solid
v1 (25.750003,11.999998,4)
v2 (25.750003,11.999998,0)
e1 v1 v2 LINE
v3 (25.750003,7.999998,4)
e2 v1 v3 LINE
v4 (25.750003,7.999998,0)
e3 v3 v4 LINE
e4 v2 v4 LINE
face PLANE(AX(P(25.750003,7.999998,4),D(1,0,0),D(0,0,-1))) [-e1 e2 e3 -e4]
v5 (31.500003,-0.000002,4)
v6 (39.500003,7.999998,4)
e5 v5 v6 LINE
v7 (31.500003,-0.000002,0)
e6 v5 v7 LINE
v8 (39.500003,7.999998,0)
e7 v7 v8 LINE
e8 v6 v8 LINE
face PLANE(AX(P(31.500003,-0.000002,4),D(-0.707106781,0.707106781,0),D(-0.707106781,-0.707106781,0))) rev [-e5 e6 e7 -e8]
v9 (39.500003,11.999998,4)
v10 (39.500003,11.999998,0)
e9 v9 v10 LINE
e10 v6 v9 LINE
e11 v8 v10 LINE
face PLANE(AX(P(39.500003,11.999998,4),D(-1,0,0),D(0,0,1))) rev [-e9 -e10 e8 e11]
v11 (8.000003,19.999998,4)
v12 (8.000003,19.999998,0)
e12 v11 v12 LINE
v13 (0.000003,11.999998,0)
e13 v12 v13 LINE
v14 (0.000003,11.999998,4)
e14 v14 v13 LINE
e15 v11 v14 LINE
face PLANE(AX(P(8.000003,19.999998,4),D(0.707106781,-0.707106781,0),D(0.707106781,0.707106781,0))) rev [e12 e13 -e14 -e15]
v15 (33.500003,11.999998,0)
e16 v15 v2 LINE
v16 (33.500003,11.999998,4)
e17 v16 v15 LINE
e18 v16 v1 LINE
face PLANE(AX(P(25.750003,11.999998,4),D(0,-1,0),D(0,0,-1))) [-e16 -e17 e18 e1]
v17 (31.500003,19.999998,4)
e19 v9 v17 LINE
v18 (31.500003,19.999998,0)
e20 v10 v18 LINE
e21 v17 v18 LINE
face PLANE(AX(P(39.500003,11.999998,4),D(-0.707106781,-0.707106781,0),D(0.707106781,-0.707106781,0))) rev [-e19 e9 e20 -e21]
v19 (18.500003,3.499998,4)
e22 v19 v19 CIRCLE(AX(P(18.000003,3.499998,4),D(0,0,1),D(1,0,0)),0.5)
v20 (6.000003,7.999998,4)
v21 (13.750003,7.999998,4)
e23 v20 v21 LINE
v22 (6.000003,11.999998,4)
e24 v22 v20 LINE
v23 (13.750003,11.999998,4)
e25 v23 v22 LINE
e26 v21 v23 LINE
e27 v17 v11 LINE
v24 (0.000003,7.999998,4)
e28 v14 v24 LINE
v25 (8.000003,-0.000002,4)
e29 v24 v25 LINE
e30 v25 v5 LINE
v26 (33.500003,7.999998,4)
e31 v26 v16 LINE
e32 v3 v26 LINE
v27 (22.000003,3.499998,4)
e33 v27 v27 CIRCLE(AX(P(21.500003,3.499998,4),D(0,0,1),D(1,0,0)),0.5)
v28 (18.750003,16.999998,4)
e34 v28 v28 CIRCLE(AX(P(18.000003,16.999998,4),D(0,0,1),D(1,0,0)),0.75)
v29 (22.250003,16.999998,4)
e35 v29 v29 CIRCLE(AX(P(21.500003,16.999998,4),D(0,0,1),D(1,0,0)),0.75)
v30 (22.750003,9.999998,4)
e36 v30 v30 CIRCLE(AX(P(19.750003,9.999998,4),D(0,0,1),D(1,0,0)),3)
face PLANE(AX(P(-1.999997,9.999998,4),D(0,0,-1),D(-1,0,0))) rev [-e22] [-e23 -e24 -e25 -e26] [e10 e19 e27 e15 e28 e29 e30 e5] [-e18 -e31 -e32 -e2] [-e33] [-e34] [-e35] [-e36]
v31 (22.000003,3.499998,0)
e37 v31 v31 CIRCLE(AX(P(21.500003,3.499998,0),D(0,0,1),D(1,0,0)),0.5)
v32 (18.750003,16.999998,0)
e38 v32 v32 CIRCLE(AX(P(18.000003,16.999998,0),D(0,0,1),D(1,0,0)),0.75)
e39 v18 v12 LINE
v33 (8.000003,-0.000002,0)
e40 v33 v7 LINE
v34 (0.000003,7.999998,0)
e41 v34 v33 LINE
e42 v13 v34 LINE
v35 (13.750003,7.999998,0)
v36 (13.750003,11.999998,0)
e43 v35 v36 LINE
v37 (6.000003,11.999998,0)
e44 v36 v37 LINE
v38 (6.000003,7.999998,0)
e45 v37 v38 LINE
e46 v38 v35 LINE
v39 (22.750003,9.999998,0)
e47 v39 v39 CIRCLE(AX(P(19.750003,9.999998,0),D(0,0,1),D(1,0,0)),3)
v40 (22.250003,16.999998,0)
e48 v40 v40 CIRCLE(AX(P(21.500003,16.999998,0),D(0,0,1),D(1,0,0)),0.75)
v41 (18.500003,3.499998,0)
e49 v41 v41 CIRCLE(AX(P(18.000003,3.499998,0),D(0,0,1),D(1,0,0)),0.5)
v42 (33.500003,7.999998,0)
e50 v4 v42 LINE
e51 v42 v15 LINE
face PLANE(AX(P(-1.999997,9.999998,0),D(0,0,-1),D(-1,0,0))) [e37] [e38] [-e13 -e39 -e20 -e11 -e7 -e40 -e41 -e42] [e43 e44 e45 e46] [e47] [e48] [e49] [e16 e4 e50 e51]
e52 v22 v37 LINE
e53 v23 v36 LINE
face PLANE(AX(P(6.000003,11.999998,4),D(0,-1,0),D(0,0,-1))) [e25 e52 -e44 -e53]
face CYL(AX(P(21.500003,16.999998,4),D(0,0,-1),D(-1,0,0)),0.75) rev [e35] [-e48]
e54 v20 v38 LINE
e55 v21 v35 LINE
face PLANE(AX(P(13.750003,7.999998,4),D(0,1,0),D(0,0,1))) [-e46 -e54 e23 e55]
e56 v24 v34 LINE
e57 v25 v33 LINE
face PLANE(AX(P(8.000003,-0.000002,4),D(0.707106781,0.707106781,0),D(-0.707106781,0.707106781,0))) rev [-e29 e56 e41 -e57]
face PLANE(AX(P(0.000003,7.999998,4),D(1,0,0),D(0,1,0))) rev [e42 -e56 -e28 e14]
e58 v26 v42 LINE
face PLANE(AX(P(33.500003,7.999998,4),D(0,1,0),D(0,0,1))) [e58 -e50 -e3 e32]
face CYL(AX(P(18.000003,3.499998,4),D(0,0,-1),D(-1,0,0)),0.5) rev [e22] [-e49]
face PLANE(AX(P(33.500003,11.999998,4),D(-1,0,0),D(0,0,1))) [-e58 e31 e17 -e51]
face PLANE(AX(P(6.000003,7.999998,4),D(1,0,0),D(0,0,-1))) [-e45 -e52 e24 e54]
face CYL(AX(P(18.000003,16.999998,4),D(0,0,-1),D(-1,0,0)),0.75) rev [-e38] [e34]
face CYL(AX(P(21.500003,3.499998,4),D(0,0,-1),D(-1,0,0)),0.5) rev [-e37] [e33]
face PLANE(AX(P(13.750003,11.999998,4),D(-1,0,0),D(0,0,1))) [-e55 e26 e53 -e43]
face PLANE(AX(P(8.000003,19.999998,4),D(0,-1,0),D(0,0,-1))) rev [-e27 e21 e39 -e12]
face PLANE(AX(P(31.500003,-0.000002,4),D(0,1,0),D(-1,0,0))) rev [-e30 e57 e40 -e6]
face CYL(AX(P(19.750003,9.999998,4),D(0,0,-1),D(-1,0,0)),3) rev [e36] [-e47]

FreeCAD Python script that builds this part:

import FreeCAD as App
import Part
import Sketcher
from FreeCAD import Vector
Q = App.Units.Quantity

doc = App.newDocument("Part")
body = doc.addObject("PartDesign::Body", "Body")

# Sketch on XY plane
sketch1 = body.newObject("Sketcher::SketchObject", "Sketch")
sketch1.AttachmentSupport = (doc.getObject("XY_Plane"), [""])
sketch1.MapMode = "FlatFace"
sketch1.addGeometry([
    Part.LineSegment(Vector(31.5, 20, 0), Vector(8, 20, 0)),  # 0
    Part.LineSegment(Vector(8, 20, 0), Vector(0, 12, 0)),  # 1
    Part.LineSegment(Vector(0, 12, 0), Vector(0, 8, 0)),  # 2
    Part.LineSegment(Vector(0, 8, 0), Vector(8, 0, 0)),  # 3
    Part.LineSegment(Vector(8, 0, 0), Vector(31.5, 0, 0)),  # 4
    Part.LineSegment(Vector(31.5, 0, 0), Vector(39.5, 8, 0)),  # 5
    Part.LineSegment(Vector(39.5, 8, 0), Vector(39.5, 12, 0)),  # 6
    Part.LineSegment(Vector(39.5, 12, 0), Vector(31.5, 20, 0)),  # 7
    Part.Circle(Vector(21.5, 3.5, 0), Vector(0, 0, 1), 0.5),  # 8
    Part.LineSegment(Vector(25.8, 8, 0), Vector(25.8, 12, 0)),  # 9
    Part.LineSegment(Vector(25.8, 12, 0), Vector(33.5, 12, 0)),  # 10
    Part.LineSegment(Vector(33.5, 12, 0), Vector(33.5, 8, 0)),  # 11
    Part.LineSegment(Vector(33.5, 8, 0), Vector(25.8, 8, 0)),  # 12
    Part.Circle(Vector(18, 3.5, 0), Vector(0, 0, 1), 0.5),  # 13
    Part.Circle(Vector(19.8, 10, 0), Vector(0, 0, 1), 3),  # 14
    Part.LineSegment(Vector(6, 8, 0), Vector(6, 12, 0)),  # 15
    Part.LineSegment(Vector(6, 12, 0), Vector(13.8, 12, 0)),  # 16
    Part.LineSegment(Vector(13.8, 12, 0), Vector(13.8, 8, 0)),  # 17
    Part.LineSegment(Vector(13.8, 8, 0), Vector(6, 8, 0)),  # 18
    Part.Circle(Vector(21.5, 17, 0), Vector(0, 0, 1), 0.8),  # 19
    Part.Circle(Vector(18, 17, 0), Vector(0, 0, 1), 0.8),  # 20
], False)
sketch1.addConstraint([
    Sketcher.Constraint("Coincident", 0, 2, 1, 1),
    Sketcher.Constraint("Coincident", 1, 2, 2, 1),
    Sketcher.Constraint("Coincident", 2, 2, 3, 1),
    Sketcher.Constraint("Coincident", 3, 2, 4, 1),
    Sketcher.Constraint("Coincident", 4, 2, 5, 1),
    Sketcher.Constraint("Coincident", 5, 2, 6, 1),
    Sketcher.Constraint("Coincident", 6, 2, 7, 1),
    Sketcher.Constraint("Coincident", 7, 2, 0, 1),
    Sketcher.Constraint("Coincident", 9, 2, 10, 1),
    Sketcher.Constraint("Coincident", 10, 2, 11, 1),
    Sketcher.Constraint("Coincident", 11, 2, 12, 1),
    Sketcher.Constraint("Coincident", 12, 2, 9, 1),
    Sketcher.Constraint("Coincident", 15, 2, 16, 1),
    Sketcher.Constraint("Coincident", 16, 2, 17, 1),
    Sketcher.Constraint("Coincident", 17, 2, 18, 1),
    Sketcher.Constraint("Coincident", 18, 2, 15, 1),
    Sketcher.Constraint("Horizontal", 0),
    Sketcher.Constraint("Vertical", 2),
    Sketcher.Constraint("Horizontal", 4),
    Sketcher.Constraint("Vertical", 6),
    Sketcher.Constraint("Vertical", 9),
    Sketcher.Constraint("Horizontal", 10),
    Sketcher.Constraint("Vertical", 11),
    Sketcher.Constraint("Horizontal", 12),
    Sketcher.Constraint("Vertical", 15),
    Sketcher.Constraint("Horizontal", 16),
    Sketcher.Constraint("Vertical", 17),
    Sketcher.Constraint("Horizontal", 18),
    Sketcher.Constraint("Equal", 8, 13),
    Sketcher.Constraint("Equal", 19, 20),
    Sketcher.Constraint("PointOnObject", 3, 2, -1),
    Sketcher.Constraint("Perpendicular", 1, 3),
    Sketcher.Constraint("Perpendicular", 3, 5),
    Sketcher.Constraint("Perpendicular", 5, 7),
    Sketcher.Constraint("Horizontal", 8, 3, 13, 3),
    Sketcher.Constraint("Horizontal", 19, 3, 20, 3),
    Sketcher.Constraint("Horizontal", 2, 2, 5, 2),
    Sketcher.Constraint("Horizontal", 1, 2, 6, 2),
    Sketcher.Constraint("Horizontal", 6, 2, 9, 2),
    Sketcher.Constraint("Horizontal", 5, 2, 11, 2),
    Sketcher.Constraint("Horizontal", 10, 2, 15, 2),
    Sketcher.Constraint("Horizontal", 12, 2, 17, 2),
    Sketcher.Constraint("Vertical", 8, 3, 19, 3),
    Sketcher.Constraint("Vertical", 13, 3, 20, 3),
    Sketcher.Constraint("Vertical", 0, 2, 3, 2),
    Sketcher.Constraint("Vertical", 4, 2, 7, 2),
    Sketcher.Constraint("Equal", 12, 16),
    Sketcher.Constraint("Diameter", 8, Q("1 mm")),
    Sketcher.Constraint("Diameter", 14, Q("6 mm")),
    Sketcher.Constraint("Diameter", 19, Q("1.5 mm")),
    Sketcher.Constraint("DistanceY", 2, 2, 2, 1, Q("4 mm")),
    Sketcher.Constraint("DistanceX", 0, 2, 0, 1, Q("23.5 mm")),
    Sketcher.Constraint("DistanceY", -1, 1, 14, 3, Q("9.999998 mm")),
    Sketcher.Constraint("DistanceY", -1, 1, 19, 3, Q("16.999998 mm")),
    Sketcher.Constraint("DistanceY", -1, 1, 0, 2, Q("19.999998 mm")),
    Sketcher.Constraint("DistanceX", 0, 2, 20, 3, Q("10 mm")),
    Sketcher.Constraint("DistanceX", 8, 3, 4, 2, Q("10 mm")),
    Sketcher.Constraint("DistanceX", 14, 3, 9, 2, Q("6 mm")),
    Sketcher.Constraint("DistanceX", 10, 2, 6, 2, Q("6 mm")),
    Sketcher.Constraint("DistanceX", 1, 2, 15, 2, Q("6 mm")),
    Sketcher.Constraint("DistanceX", 16, 2, 14, 3, Q("6 mm")),
    Sketcher.Constraint("DistanceY", -1, 1, 8, 3, Q("3.499998 mm")),
    Sketcher.Constraint("DistanceX", -1, 1, 8, 3, Q("21.500003 mm")),
])
pad1 = body.newObject("PartDesign::Pad", "Pad")
pad1.Profile = sketch1
pad1.Length = 4

doc.recompute()
